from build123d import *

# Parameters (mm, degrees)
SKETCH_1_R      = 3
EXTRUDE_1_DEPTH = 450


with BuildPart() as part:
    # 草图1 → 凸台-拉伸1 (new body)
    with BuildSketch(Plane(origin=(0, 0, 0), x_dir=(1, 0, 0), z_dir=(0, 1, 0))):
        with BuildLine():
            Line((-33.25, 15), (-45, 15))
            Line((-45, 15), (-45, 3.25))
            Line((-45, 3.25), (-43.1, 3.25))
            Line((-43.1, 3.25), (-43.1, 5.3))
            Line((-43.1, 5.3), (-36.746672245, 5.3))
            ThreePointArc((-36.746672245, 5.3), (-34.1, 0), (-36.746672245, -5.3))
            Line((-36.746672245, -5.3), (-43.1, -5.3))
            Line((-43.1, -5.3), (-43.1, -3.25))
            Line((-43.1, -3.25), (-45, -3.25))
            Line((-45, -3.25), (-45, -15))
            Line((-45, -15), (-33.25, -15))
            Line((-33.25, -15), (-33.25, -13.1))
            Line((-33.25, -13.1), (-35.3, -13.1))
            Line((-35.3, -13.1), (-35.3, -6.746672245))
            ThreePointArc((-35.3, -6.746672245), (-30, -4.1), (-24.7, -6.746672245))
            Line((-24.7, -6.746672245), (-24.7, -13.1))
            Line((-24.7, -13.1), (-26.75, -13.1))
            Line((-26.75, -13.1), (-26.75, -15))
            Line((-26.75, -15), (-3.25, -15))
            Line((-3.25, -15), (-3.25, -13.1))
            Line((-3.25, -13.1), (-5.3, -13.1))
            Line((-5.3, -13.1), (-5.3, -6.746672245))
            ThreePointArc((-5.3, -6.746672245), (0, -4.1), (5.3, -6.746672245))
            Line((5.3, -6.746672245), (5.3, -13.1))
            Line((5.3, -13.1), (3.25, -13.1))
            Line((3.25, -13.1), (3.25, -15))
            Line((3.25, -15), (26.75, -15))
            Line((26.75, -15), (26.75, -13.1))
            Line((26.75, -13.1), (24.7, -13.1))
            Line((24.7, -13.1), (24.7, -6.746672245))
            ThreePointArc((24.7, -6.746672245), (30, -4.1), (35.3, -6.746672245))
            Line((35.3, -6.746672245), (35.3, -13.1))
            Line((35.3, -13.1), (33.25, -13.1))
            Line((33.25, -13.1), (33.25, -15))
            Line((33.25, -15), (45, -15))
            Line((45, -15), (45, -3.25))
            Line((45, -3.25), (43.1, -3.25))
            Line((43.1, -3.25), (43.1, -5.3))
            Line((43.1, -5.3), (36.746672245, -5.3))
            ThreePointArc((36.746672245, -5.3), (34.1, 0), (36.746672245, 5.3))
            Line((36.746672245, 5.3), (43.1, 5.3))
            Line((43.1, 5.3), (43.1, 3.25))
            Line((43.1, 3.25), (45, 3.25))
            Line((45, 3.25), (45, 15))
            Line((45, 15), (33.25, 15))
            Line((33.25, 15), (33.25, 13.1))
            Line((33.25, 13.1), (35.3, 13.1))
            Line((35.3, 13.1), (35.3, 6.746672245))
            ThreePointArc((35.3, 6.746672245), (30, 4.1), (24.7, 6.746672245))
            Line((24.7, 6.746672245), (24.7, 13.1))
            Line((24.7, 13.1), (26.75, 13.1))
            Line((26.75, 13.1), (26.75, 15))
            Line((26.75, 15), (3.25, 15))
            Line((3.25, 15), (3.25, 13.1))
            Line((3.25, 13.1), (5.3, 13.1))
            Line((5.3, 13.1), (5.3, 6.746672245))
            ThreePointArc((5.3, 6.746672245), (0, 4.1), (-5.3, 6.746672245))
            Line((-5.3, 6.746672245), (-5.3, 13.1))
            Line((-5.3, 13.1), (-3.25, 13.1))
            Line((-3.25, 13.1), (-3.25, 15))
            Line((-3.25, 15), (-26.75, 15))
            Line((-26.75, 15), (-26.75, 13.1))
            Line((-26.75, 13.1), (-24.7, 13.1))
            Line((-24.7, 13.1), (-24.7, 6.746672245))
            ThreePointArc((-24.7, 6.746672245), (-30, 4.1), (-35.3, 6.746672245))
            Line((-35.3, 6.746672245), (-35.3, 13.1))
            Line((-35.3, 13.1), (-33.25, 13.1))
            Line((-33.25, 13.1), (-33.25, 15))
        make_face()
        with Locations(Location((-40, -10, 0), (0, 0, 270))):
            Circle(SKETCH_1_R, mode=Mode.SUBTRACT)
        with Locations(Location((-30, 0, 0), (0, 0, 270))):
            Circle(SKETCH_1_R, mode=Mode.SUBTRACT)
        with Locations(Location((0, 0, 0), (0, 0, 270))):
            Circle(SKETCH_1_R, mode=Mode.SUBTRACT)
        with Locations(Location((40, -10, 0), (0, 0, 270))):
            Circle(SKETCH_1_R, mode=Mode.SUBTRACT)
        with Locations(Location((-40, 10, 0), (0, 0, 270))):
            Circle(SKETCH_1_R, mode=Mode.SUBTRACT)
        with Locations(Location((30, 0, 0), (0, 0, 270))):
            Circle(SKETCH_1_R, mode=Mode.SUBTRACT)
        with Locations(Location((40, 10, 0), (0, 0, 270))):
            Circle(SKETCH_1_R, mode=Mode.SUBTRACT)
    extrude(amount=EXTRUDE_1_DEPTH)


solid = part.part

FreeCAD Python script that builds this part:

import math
import FreeCAD as App
import Part
import Sketcher
Q = App.Units.Quantity

doc = App.newDocument("Part")
body = doc.addObject("PartDesign::Body", "Body")

sketch1 = body.newObject("Sketcher::SketchObject", "Sketch")
sketch1.AttachmentSupport = (doc.getObject("XZ_Plane"), [""])
sketch1.MapMode = "FlatFace"
sketch1.addGeometry([
    Part.LineSegment(App.Vector(-33.2, -15, 0), App.Vector(-45, -15, 0)),
    Part.LineSegment(App.Vector(-45, -15, 0), App.Vector(-45, -3.2, 0)),
    Part.LineSegment(App.Vector(-45, -3.2, 0), App.Vector(-43.1, -3.2, 0)),
    Part.LineSegment(App.Vector(-43.1, -3.2, 0), App.Vector(-43.1, -5.3, 0)),
    Part.LineSegment(App.Vector(-43.1, -5.3, 0), App.Vector(-36.7, -5.3, 0)),
    Part.ArcOfCircle(Part.Circle(App.Vector(-40.7, 0, 0), App.Vector(0, 0, 1), 6.6), math.radians(-53), math.radians(53)),
    Part.LineSegment(App.Vector(-36.7, 5.3, 0), App.Vector(-43.1, 5.3, 0)),
    Part.LineSegment(App.Vector(-43.1, 5.3, 0), App.Vector(-43.1, 3.2, 0)),
    Part.LineSegment(App.Vector(-43.1, 3.2, 0), App.Vector(-45, 3.2, 0)),
    Part.LineSegment(App.Vector(-45, 3.2, 0), App.Vector(-45, 15, 0)),
    Part.LineSegment(App.Vector(-45, 15, 0), App.Vector(-33.2, 15, 0)),
    Part.LineSegment(App.Vector(-33.2, 15, 0), App.Vector(-33.2, 13.1, 0)),
    Part.LineSegment(App.Vector(-33.2, 13.1, 0), App.Vector(-35.3, 13.1, 0)),
    Part.LineSegment(App.Vector(-35.3, 13.1, 0), App.Vector(-35.3, 6.7, 0)),
    Part.ArcOfCircle(Part.Circle(App.Vector(-30, 10.7, 0), App.Vector(0, 0, 1), 6.6), math.radians(-143), math.radians(-37)),
    Part.LineSegment(App.Vector(-24.7, 6.7, 0), App.Vector(-24.7, 13.1, 0)),
    Part.LineSegment(App.Vector(-24.7, 13.1, 0), App.Vector(-26.8, 13.1, 0)),
    Part.LineSegment(App.Vector(-26.8, 13.1, 0), App.Vector(-26.8, 15, 0)),
    Part.LineSegment(App.Vector(-26.8, 15, 0), App.Vector(-3.2, 15, 0)),
    Part.LineSegment(App.Vector(-3.2, 15, 0), App.Vector(-3.2, 13.1, 0)),
    Part.LineSegment(App.Vector(-3.2, 13.1, 0), App.Vector(-5.3, 13.1, 0)),
    Part.LineSegment(App.Vector(-5.3, 13.1, 0), App.Vector(-5.3, 6.7, 0)),
    Part.ArcOfCircle(Part.Circle(App.Vector(0, 10.7, 0), App.Vector(0, 0, 1), 6.6), math.radians(-143), math.radians(-37)),
    Part.LineSegment(App.Vector(5.3, 6.7, 0), App.Vector(5.3, 13.1, 0)),
    Part.LineSegment(App.Vector(5.3, 13.1, 0), App.Vector(3.2, 13.1, 0)),
    Part.LineSegment(App.Vector(3.2, 13.1, 0), App.Vector(3.2, 15, 0)),
    Part.LineSegment(App.Vector(3.2, 15, 0), App.Vector(26.8, 15, 0)),
    Part.LineSegment(App.Vector(26.8, 15, 0), App.Vector(26.8, 13.1, 0)),
    Part.LineSegment(App.Vector(26.8, 13.1, 0), App.Vector(24.7, 13.1, 0)),
    Part.LineSegment(App.Vector(24.7, 13.1, 0), App.Vector(24.7, 6.7, 0)),
    Part.ArcOfCircle(Part.Circle(App.Vector(30, 10.7, 0), App.Vector(0, 0, 1), 6.6), math.radians(-143), math.radians(-37)),
    Part.LineSegment(App.Vector(35.3, 6.7, 0), App.Vector(35.3, 13.1, 0)),
    Part.LineSegment(App.Vector(35.3, 13.1, 0), App.Vector(33.2, 13.1, 0)),
    Part.LineSegment(App.Vector(33.2, 13.1, 0), App.Vector(33.2, 15, 0)),
    Part.LineSegment(App.Vector(33.2, 15, 0), App.Vector(45, 15, 0)),
    Part.LineSegment(App.Vector(45, 15, 0), App.Vector(45, 3.2, 0)),
    Part.LineSegment(App.Vector(45, 3.2, 0), App.Vector(43.1, 3.2, 0)),
    Part.LineSegment(App.Vector(43.1, 3.2, 0), App.Vector(43.1, 5.3, 0)),
    Part.LineSegment(App.Vector(43.1, 5.3, 0), App.Vector(36.7, 5.3, 0)),
    Part.ArcOfCircle(Part.Circle(App.Vector(40.7, 0, 0), App.Vector(0, 0, 1), 6.6), math.radians(127), math.radians(233)),
    Part.LineSegment(App.Vector(36.7, -5.3, 0), App.Vector(43.1, -5.3, 0)),
    Part.LineSegment(App.Vector(43.1, -5.3, 0), App.Vector(43.1, -3.2, 0)),
    Part.LineSegment(App.Vector(43.1, -3.2, 0), App.Vector(45, -3.2, 0)),
    Part.LineSegment(App.Vector(45, -3.2, 0), App.Vector(45, -15, 0)),
    Part.LineSegment(App.Vector(45, -15, 0), App.Vector(33.2, -15, 0)),
    Part.LineSegment(App.Vector(33.2, -15, 0), App.Vector(33.2, -13.1, 0)),
    Part.LineSegment(App.Vector(33.2, -13.1, 0), App.Vector(35.3, -13.1, 0)),
    Part.LineSegment(App.Vector(35.3, -13.1, 0), App.Vector(35.3, -6.7, 0)),
    Part.ArcOfCircle(Part.Circle(App.Vector(30, -10.7, 0), App.Vector(0, 0, 1), 6.6), math.radians(37), math.radians(143)),
    Part.LineSegment(App.Vector(24.7, -6.7, 0), App.Vector(24.7, -13.1, 0)),
    Part.LineSegment(App.Vector(24.7, -13.1, 0), App.Vector(26.8, -13.1, 0)),
    Part.LineSegment(App.Vector(26.8, -13.1, 0), App.Vector(26.8, -15, 0)),
    Part.LineSegment(App.Vector(26.8, -15, 0), App.Vector(3.2, -15, 0)),
    Part.LineSegment(App.Vector(3.2, -15, 0), App.Vector(3.2, -13.1, 0)),
    Part.LineSegment(App.Vector(3.2, -13.1, 0), App.Vector(5.3, -13.1, 0)),
    Part.LineSegment(App.Vector(5.3, -13.1, 0), App.Vector(5.3, -6.7, 0)),
    Part.ArcOfCircle(Part.Circle(App.Vector(0, -10.7, 0), App.Vector(0, 0, 1), 6.6), math.radians(37), math.radians(143)),
    Part.LineSegment(App.Vector(-5.3, -6.7, 0), App.Vector(-5.3, -13.1, 0)),
    Part.LineSegment(App.Vector(-5.3, -13.1, 0), App.Vector(-3.2, -13.1, 0)),
    Part.LineSegment(App.Vector(-3.2, -13.1, 0), App.Vector(-3.2, -15, 0)),
    Part.LineSegment(App.Vector(-3.2, -15, 0), App.Vector(-26.8, -15, 0)),
    Part.LineSegment(App.Vector(-26.8, -15, 0), App.Vector(-26.8, -13.1, 0)),
    Part.LineSegment(App.Vector(-26.8, -13.1, 0), App.Vector(-24.7, -13.1, 0)),
    Part.LineSegment(App.Vector(-24.7, -13.1, 0), App.Vector(-24.7, -6.7, 0)),
    Part.ArcOfCircle(Part.Circle(App.Vector(-30, -10.7, 0), App.Vector(0, 0, 1), 6.6), math.radians(37), math.radians(143)),
    Part.LineSegment(App.Vector(-35.3, -6.7, 0), App.Vector(-35.3, -13.1, 0)),
    Part.LineSegment(App.Vector(-35.3, -13.1, 0), App.Vector(-33.2, -13.1, 0)),
    Part.LineSegment(App.Vector(-33.2, -13.1, 0), App.Vector(-33.2, -15, 0)),
    Part.Circle(App.Vector(-40, 10, 0), App.Vector(0, 0, 1), 3),
    Part.Circle(App.Vector(40, 10, 0), App.Vector(0, 0, 1), 3),
    Part.Circle(App.Vector(-30, 0, 0), App.Vector(0, 0, 1), 3),
    Part.Circle(App.Vector(-40, -10, 0), App.Vector(0, 0, 1), 3),
    Part.Circle(App.Vector(0, 0, 0), App.Vector(0, 0, 1), 3),
    Part.Circle(App.Vector(30, 0, 0), App.Vector(0, 0, 1), 3),
    Part.Circle(App.Vector(40, -10, 0), App.Vector(0, 0, 1), 3),
], False)
sketch1.addConstraint([
    Sketcher.Constraint("Coincident", 0, 2, 1, 1),
    Sketcher.Constraint("Coincident", 1, 2, 2, 1),
    Sketcher.Constraint("Coincident", 2, 2, 3, 1),
    Sketcher.Constraint("Coincident", 3, 2, 4, 1),
    Sketcher.Constraint("Coincident", 4, 2, 5, 1),
    Sketcher.Constraint("Coincident", 5, 2, 6, 1),
    Sketcher.Constraint("Coincident", 6, 2, 7, 1),
    Sketcher.Constraint("Coincident", 7, 2, 8, 1),
    Sketcher.Constraint("Coincident", 8, 2, 9, 1),
    Sketcher.Constraint("Coincident", 9, 2, 10, 1),
    Sketcher.Constraint("Coincident", 10, 2, 11, 1),
    Sketcher.Constraint("Coincident", 11, 2, 12, 1),
    Sketcher.Constraint("Coincident", 12, 2, 13, 1),
    Sketcher.Constraint("Coincident", 13, 2, 14, 1),
    Sketcher.Constraint("Coincident", 14, 2, 15, 1),
    Sketcher.Constraint("Coincident", 15, 2, 16, 1),
    Sketcher.Constraint("Coincident", 16, 2, 17, 1),
    Sketcher.Constraint("Coincident", 17, 2, 18, 1),
    Sketcher.Constraint("Coincident", 18, 2, 19, 1),
    Sketcher.Constraint("Coincident", 19, 2, 20, 1),
    Sketcher.Constraint("Coincident", 20, 2, 21, 1),
    Sketcher.Constraint("Coincident", 21, 2, 22, 1),
    Sketcher.Constraint("Coincident", 22, 2, 23, 1),
    Sketcher.Constraint("Coincident", 23, 2, 24, 1),
    Sketcher.Constraint("Coincident", 24, 2, 25, 1),
    Sketcher.Constraint("Coincident", 25, 2, 26, 1),
    Sketcher.Constraint("Coincident", 26, 2, 27, 1),
    Sketcher.Constraint("Coincident", 27, 2, 28, 1),
    Sketcher.Constraint("Coincident", 28, 2, 29, 1),
    Sketcher.Constraint("Coincident", 29, 2, 30, 1),
    Sketcher.Constraint("Coincident", 30, 2, 31, 1),
    Sketcher.Constraint("Coincident", 31, 2, 32, 1),
    Sketcher.Constraint("Coincident", 32, 2, 33, 1),
    Sketcher.Constraint("Coincident", 33, 2, 34, 1),
    Sketcher.Constraint("Coincident", 34, 2, 35, 1),
    Sketcher.Constraint("Coincident", 35, 2, 36, 1),
    Sketcher.Constraint("Coincident", 36, 2, 37, 1),
    Sketcher.Constraint("Coincident", 37, 2, 38, 1),
    Sketcher.Constraint("Coincident", 38, 2, 39, 1),
    Sketcher.Constraint("Coincident", 39, 2, 40, 1),
    Sketcher.Constraint("Coincident", 40, 2, 41, 1),
    Sketcher.Constraint("Coincident", 41, 2, 42, 1),
    Sketcher.Constraint("Coincident", 42, 2, 43, 1),
    Sketcher.Constraint("Coincident", 43, 2, 44, 1),
    Sketcher.Constraint("Coincident", 44, 2, 45, 1),
    Sketcher.Constraint("Coincident", 45, 2, 46, 1),
    Sketcher.Constraint("Coincident", 46, 2, 47, 1),
    Sketcher.Constraint("Coincident", 47, 2, 48, 1),
    Sketcher.Constraint("Coincident", 48, 2, 49, 1),
    Sketcher.Constraint("Coincident", 49, 2, 50, 1),
    Sketcher.Constraint("Coincident", 50, 2, 51, 1),
    Sketcher.Constraint("Coincident", 51, 2, 52, 1),
    Sketcher.Constraint("Coincident", 52, 2, 53, 1),
    Sketcher.Constraint("Coincident", 53, 2, 54, 1),
    Sketcher.Constraint("Coincident", 54, 2, 55, 1),
    Sketcher.Constraint("Coincident", 55, 2, 56, 1),
    Sketcher.Constraint("Coincident", 56, 2, 57, 1),
    Sketcher.Constraint("Coincident", 57, 2, 58, 1),
    Sketcher.Constraint("Coincident", 58, 2, 59, 1),
    Sketcher.Constraint("Coincident", 59, 2, 60, 1),
    Sketcher.Constraint("Coincident", 60, 2, 61, 1),
    Sketcher.Constraint("Coincident", 61, 2, 62, 1),
    Sketcher.Constraint("Coincident", 62, 2, 63, 1),
    Sketcher.Constraint("Coincident", 63, 2, 64, 1),
    Sketcher.Constraint("Coincident", 64, 2, 65, 1),
    Sketcher.Constraint("Coincident", 65, 2, 66, 1),
    Sketcher.Constraint("Coincident", 66, 2, 67, 1),
    Sketcher.Constraint("Coincident", 67, 2, 0, 1),
    Sketcher.Constraint("Horizontal", 0),
    Sketcher.Constraint("Vertical", 1),
    Sketcher.Constraint("Horizontal", 2),
    Sketcher.Constraint("Vertical", 3),
    Sketcher.Constraint("Horizontal", 4),
    Sketcher.Constraint("Horizontal", 6),
    Sketcher.Constraint("Vertical", 7),
    Sketcher.Constraint("Horizontal", 8),
    Sketcher.Constraint("Vertical", 9),
    Sketcher.Constraint("Horizontal", 10),
    Sketcher.Constraint("Vertical", 11),
    Sketcher.Constraint("Horizontal", 12),
    Sketcher.Constraint("Vertical", 13),
    Sketcher.Constraint("Vertical", 15),
    Sketcher.Constraint("Horizontal", 16),
    Sketcher.Constraint("Vertical", 17),
    Sketcher.Constraint("Horizontal", 18),
    Sketcher.Constraint("Vertical", 19),
    Sketcher.Constraint("Horizontal", 20),
    Sketcher.Constraint("Vertical", 21),
    Sketcher.Constraint("Vertical", 23),
    Sketcher.Constraint("Horizontal", 24),
    Sketcher.Constraint("Vertical", 25),
    Sketcher.Constraint("Horizontal", 26),
    Sketcher.Constraint("Vertical", 27),
    Sketcher.Constraint("Horizontal", 28),
    Sketcher.Constraint("Vertical", 29),
    Sketcher.Constraint("Vertical", 31),
    Sketcher.Constraint("Horizontal", 32),
    Sketcher.Constraint("Vertical", 33),
    Sketcher.Constraint("Horizontal", 34),
    Sketcher.Constraint("Vertical", 35),
    Sketcher.Constraint("Horizontal", 36),
    Sketcher.Constraint("Vertical", 37),
    Sketcher.Constraint("Horizontal", 38),
    Sketcher.Constraint("Horizontal", 40),
    Sketcher.Constraint("Vertical", 41),
    Sketcher.Constraint("Horizontal", 42),
    Sketcher.Constraint("Vertical", 43),
    Sketcher.Constraint("Horizontal", 44),
    Sketcher.Constraint("Vertical", 45),
    Sketcher.Constraint("Horizontal", 46),
    Sketcher.Constraint("Vertical", 47),
    Sketcher.Constraint("Vertical", 49),
    Sketcher.Constraint("Horizontal", 50),
    Sketcher.Constraint("Vertical", 51),
    Sketcher.Constraint("Horizontal", 52),
    Sketcher.Constraint("Vertical", 53),
    Sketcher.Constraint("Horizontal", 54),
    Sketcher.Constraint("Vertical", 55),
    Sketcher.Constraint("Vertical", 57),
    Sketcher.Constraint("Horizontal", 58),
    Sketcher.Constraint("Vertical", 59),
    Sketcher.Constraint("Horizontal", 60),
    Sketcher.Constraint("Vertical", 61),
    Sketcher.Constraint("Horizontal", 62),
    Sketcher.Constraint("Vertical", 63),
    Sketcher.Constraint("Vertical", 65),
    Sketcher.Constraint("Horizontal", 66),
    Sketcher.Constraint("Vertical", 67),
    Sketcher.Constraint("Coincident", 72, 3, -1, 1),
    Sketcher.Constraint("Equal", 5, 14),
    Sketcher.Constraint("Equal", 14, 22),
    Sketcher.Constraint("Equal", 22, 30),
    Sketcher.Constraint("Equal", 30, 39),
    Sketcher.Constraint("Equal", 39, 48),
    Sketcher.Constraint("Equal", 48, 56),
    Sketcher.Constraint("Equal", 56, 64),
    Sketcher.Constraint("Equal", 68, 69),
    Sketcher.Constraint("Equal", 69, 70),
    Sketcher.Constraint("Equal", 70, 71),
    Sketcher.Constraint("Equal", 71, 72),
    Sketcher.Constraint("Equal", 72, 73),
    Sketcher.Constraint("Equal", 73, 74),
    Sketcher.Constraint("Symmetric", 5, 3, 39, 3, -1, 1),
    Sketcher.Constraint("Symmetric", 14, 3, 48, 3, -1, 1),
    Sketcher.Constraint("Symmetric", 22, 3, 56, 3, -1, 1),
    Sketcher.Constraint("Symmetric", 30, 3, 64, 3, -1, 1),
    Sketcher.Constraint("Symmetric", 69, 3, 71, 3, -1, 1),
    Sketcher.Constraint("Symmetric", 70, 3, 73, 3, -1, 1),
    Sketcher.Constraint("Symmetric", 68, 3, 74, 3, -1, 1),
    Sketcher.Constraint("Symmetric", 0, 2, 34, 2, -1, 1),
    Sketcher.Constraint("Symmetric", 2, 2, 36, 2, -1, 1),
    Sketcher.Constraint("Symmetric", 6, 2, 40, 2, -1, 1),
    Sketcher.Constraint("Symmetric", 8, 2, 42, 2, -1, 1),
    Sketcher.Constraint("Symmetric", 10, 2, 44, 2, -1, 1),
    Sketcher.Constraint("Symmetric", 12, 2, 46, 2, -1, 1),
    Sketcher.Constraint("Symmetric", 15, 2, 49, 2, -1, 1),
    Sketcher.Constraint("Symmetric", 17, 2, 51, 2, -1, 1),
    Sketcher.Constraint("Symmetric", 19, 2, 53, 2, -1, 1),
    Sketcher.Constraint("Symmetric", 23, 2, 57, 2, -1, 1),
    Sketcher.Constraint("Symmetric", 25, 2, 59, 2, -1, 1),
    Sketcher.Constraint("Symmetric", 27, 2, 61, 2, -1, 1),
    Sketcher.Constraint("Symmetric", 31, 2, 65, 2, -1, 1),
    Sketcher.Constraint("Symmetric", 14, 3, 30, 3, -2),
    Sketcher.Constraint("Symmetric", 68, 3, 69, 3, -2),
    Sketcher.Constraint("Symmetric", 21, 2, 22, 2, -2),
    Sketcher.Constraint("Symmetric", 19, 2, 24, 2, -2),
    Sketcher.Constraint("Symmetric", 17, 2, 26, 2, -2),
    Sketcher.Constraint("Symmetric", 15, 2, 28, 2, -2),
    Sketcher.Constraint("Symmetric", 12, 2, 31, 2, -2),
    Sketcher.Constraint("Symmetric", 10, 2, 33, 2, -2),
    Sketcher.Constraint("Symmetric", 8, 2, 35, 2, -2),
    Sketcher.Constraint("Symmetric", 6, 2, 37, 2, -2),
    Sketcher.Constraint("Symmetric", 4, 2, 39, 2, -2),
    Sketcher.Constraint("PointOnObject", 70, 3, -1),
    Sketcher.Constraint("Horizontal", 14, 3, 22, 3),
    Sketcher.Constraint("Horizontal", 13, 2, 14, 2),
    Sketcher.Constraint("Horizontal", 12, 2, 15, 2),
    Sketcher.Constraint("Horizontal", 10, 2, 17, 2),
    Sketcher.Constraint("Horizontal", 16, 2, 19, 2),
    Sketcher.Constraint("Horizontal", 14, 2, 21, 2),
    Sketcher.Constraint("Horizontal", 48, 2, 55, 2),
    Sketcher.Constraint("Horizontal", 56, 2, 63, 2),
    Sketcher.Constraint("Vertical", 64, 3, 70, 3),
    Sketcher.Constraint("Vertical", 11, 2, 66, 2),
    Sketcher.Constraint("Equal", 12, 16),
    Sketcher.Constraint("Equal", 16, 20),
    Sketcher.Constraint("Equal", 44, 1),
    Sketcher.Constraint("Equal", 66, 3),
    Sketcher.Constraint("Equal", 42, 11),
    Sketcher.Constraint("Equal", 40, 13),
    Sketcher.Constraint("Diameter", 68, Q("6 mm")),
    Sketcher.Constraint("Radius", 5, Q("6.63 mm")),
    Sketcher.Constraint("DistanceX", 2, 1, 2, 2, Q("1.9 mm")),
    Sketcher.Constraint("DistanceX", 18, 1, 18, 2, Q("23.5 mm")),
    Sketcher.Constraint("DistanceX", 14, 3, -1, 1, Q("30 mm")),
    Sketcher.Constraint("DistanceX", 68, 3, -1, 1, Q("40 mm")),
    Sketcher.Constraint("DistanceY", -1, 1, 68, 3, Q("10 mm")),
    Sketcher.Constraint("DistanceX", 0, 2, -1, 1, Q("45 mm")),
    Sketcher.Constraint("DistanceY", 0, 2, -1, 1, Q("15 mm")),
    Sketcher.Constraint("DistanceX", 12, 2, 12, 1, Q("2.05 mm")),
    Sketcher.Constraint("DistanceX", 5, 3, -1, 1, Q("40.73 mm")),
])
pad1 = body.newObject("PartDesign::Pad", "Pad")
pad1.Profile = sketch1
pad1.Length = 450
pad1.Reversed = True

doc.recompute()
